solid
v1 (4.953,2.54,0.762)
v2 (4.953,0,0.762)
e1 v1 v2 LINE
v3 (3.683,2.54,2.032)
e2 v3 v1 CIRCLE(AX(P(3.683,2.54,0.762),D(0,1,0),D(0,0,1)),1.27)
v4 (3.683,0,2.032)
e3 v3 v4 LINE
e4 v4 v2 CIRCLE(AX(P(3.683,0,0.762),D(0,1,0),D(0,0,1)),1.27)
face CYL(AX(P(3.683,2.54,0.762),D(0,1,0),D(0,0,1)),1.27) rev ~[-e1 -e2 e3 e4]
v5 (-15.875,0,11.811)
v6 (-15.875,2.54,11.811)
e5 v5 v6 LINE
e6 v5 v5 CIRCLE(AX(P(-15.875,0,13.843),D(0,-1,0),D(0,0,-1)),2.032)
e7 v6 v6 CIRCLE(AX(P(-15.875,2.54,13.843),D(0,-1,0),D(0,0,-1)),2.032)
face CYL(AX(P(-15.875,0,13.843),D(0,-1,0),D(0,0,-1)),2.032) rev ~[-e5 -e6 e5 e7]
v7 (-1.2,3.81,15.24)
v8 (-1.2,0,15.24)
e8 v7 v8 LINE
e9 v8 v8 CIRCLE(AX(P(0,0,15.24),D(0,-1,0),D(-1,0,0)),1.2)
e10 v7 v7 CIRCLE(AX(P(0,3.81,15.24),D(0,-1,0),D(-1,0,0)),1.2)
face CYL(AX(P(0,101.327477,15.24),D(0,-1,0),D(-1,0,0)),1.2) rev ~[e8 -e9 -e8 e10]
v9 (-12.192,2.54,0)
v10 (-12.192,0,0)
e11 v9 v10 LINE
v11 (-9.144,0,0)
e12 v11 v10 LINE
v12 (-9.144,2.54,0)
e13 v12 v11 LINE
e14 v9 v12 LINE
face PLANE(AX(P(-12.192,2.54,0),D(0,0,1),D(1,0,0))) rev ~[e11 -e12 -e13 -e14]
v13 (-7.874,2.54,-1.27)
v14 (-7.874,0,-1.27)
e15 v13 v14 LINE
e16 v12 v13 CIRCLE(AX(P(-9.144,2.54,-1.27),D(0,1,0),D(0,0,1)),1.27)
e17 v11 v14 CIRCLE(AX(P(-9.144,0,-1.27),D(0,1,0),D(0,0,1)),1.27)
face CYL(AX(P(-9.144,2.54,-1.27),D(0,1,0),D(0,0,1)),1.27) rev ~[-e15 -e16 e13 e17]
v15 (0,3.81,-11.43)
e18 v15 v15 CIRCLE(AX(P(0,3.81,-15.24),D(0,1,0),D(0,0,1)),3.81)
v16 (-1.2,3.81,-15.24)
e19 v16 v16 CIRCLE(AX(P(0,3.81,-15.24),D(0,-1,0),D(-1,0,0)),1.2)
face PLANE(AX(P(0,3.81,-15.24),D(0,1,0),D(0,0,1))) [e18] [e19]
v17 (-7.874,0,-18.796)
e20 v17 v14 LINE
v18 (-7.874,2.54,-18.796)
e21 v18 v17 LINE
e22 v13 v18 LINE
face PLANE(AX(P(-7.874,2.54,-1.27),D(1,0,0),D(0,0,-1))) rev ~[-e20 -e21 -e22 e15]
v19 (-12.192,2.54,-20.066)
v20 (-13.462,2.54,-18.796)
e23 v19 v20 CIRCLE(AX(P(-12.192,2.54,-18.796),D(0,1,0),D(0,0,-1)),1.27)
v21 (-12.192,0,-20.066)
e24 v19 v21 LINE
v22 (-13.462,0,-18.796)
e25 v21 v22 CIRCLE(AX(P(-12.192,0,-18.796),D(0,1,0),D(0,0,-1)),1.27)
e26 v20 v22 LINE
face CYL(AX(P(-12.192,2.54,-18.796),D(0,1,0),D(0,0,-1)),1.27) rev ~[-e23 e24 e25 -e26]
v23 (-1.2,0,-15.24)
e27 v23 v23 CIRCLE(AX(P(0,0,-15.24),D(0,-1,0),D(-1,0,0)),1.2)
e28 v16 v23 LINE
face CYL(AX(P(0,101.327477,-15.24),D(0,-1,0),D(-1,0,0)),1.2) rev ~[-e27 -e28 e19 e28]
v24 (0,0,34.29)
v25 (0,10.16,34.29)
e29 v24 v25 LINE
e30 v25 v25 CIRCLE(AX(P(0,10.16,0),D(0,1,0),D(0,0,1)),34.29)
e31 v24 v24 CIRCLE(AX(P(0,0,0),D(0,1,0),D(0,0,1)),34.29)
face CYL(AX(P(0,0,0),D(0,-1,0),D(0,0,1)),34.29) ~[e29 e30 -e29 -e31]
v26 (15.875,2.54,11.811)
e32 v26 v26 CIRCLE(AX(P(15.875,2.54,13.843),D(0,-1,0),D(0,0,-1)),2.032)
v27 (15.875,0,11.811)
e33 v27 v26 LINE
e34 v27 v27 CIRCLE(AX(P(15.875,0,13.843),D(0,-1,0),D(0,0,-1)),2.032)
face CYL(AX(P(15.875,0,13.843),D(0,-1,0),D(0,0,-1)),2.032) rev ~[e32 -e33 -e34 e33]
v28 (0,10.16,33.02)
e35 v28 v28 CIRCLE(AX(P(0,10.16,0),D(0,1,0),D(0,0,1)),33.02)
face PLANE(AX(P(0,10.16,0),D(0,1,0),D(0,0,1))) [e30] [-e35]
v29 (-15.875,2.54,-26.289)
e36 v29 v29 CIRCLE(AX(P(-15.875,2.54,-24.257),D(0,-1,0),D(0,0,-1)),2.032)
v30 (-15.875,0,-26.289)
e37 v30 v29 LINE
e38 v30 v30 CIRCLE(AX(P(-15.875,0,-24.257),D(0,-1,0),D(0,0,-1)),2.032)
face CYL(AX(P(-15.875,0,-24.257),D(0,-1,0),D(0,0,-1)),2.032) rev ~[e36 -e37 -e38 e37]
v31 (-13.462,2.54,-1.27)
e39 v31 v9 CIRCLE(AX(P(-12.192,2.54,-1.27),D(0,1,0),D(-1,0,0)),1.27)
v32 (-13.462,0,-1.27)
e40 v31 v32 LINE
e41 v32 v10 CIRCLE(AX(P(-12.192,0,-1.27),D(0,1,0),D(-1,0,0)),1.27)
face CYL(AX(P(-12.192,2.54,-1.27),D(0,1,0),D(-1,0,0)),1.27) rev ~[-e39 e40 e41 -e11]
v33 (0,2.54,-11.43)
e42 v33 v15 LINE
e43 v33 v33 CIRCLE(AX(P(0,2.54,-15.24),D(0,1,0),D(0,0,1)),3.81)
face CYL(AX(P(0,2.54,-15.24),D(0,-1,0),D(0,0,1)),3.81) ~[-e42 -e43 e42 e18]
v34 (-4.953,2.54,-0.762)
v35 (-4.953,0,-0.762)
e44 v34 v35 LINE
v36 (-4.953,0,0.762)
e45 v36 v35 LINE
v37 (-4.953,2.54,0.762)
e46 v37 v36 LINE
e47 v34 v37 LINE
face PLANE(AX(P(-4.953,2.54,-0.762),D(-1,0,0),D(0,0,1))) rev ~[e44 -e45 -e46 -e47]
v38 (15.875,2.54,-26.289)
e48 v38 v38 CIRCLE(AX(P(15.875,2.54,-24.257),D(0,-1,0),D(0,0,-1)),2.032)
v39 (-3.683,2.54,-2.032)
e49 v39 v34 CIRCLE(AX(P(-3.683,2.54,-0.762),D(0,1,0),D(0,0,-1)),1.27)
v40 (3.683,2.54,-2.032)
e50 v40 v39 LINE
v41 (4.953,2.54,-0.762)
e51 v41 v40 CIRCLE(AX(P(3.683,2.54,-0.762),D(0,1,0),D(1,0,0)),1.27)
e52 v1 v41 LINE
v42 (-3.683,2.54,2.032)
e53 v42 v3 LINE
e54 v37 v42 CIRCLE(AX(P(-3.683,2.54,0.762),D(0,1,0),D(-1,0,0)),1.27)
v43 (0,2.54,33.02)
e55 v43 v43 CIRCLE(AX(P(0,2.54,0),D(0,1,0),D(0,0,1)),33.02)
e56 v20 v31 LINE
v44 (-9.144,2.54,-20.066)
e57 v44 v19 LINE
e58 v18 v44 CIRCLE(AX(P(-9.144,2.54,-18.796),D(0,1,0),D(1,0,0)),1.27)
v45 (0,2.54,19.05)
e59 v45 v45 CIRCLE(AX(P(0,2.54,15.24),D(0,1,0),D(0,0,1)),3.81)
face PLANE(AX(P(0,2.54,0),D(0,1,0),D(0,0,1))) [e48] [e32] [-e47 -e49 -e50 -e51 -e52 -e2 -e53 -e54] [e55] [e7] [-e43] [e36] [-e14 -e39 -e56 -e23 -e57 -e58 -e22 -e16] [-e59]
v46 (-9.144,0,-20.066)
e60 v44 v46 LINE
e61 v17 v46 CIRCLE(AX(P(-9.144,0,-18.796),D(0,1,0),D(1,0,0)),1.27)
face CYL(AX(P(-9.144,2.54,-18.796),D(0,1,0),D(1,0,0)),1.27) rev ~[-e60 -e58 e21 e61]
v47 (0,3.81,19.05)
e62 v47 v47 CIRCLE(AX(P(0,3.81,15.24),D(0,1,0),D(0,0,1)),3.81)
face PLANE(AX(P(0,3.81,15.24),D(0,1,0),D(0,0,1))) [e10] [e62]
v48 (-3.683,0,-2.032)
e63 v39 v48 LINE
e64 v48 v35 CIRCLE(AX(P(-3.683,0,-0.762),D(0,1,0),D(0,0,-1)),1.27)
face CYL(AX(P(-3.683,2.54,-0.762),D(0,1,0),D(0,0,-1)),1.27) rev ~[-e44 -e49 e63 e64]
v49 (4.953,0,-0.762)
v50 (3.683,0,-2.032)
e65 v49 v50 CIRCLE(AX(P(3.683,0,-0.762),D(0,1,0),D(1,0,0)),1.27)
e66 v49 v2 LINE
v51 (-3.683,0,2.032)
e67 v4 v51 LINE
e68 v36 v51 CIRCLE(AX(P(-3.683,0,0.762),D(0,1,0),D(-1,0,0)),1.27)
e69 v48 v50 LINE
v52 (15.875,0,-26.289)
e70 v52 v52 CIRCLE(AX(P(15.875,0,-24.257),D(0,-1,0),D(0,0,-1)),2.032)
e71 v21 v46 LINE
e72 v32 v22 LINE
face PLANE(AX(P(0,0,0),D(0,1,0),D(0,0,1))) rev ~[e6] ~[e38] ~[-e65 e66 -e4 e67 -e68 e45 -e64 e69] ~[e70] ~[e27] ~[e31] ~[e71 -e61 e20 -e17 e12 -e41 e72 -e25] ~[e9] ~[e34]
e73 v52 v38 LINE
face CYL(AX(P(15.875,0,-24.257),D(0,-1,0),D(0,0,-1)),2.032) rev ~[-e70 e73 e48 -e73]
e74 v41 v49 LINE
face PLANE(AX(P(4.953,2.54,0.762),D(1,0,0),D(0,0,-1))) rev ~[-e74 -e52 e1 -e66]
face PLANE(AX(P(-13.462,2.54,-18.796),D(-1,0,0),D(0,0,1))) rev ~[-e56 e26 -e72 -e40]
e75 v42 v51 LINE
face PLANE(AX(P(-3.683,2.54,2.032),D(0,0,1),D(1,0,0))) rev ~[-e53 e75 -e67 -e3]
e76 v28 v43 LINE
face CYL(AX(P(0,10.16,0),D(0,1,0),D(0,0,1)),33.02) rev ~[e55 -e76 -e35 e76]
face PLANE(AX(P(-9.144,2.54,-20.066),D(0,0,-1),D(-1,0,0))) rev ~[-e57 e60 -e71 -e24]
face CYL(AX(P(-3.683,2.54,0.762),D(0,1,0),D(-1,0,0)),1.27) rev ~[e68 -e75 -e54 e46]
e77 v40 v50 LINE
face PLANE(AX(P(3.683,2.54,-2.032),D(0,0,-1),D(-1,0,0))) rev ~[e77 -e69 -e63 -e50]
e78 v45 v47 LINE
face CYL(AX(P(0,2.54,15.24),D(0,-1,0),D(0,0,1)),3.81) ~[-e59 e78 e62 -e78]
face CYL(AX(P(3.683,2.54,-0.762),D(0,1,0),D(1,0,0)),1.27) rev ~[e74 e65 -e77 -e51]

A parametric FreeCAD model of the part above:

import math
import FreeCAD as App
import Part
import Sketcher
from FreeCAD import Vector
Q = App.Units.Quantity

doc = App.newDocument("Part")
params = doc.addObject("Spreadsheet::Sheet", "Params")
for row, (alias, value) in enumerate([
    ("sketch1_diameter", "2.7 in"),
    ("pad1_length", "0.4 in"),
    ("sketch2_diameter", "2.6 in"),
    ("pocket1_length", "0.3 in"),
    ("sketch3_diameter", "0.3 in"),
    ("pad2_length", "0.05 in"),
    ("sketch4_radius", "0.05 in"),
    ("sketch4_width", "0.29 in"),
    ("sketch4_height", "0.06 in"),
    ("sketch5_radius", "0.05 in"),
    ("sketch5_width", "0.12 in"),
    ("sketch5_height", "0.69 in"),
    ("sketch6_diameter", "0.16 in"),
    ("sketch7_diameter", "0.16 in"),
    ("sketch8_diameter", "0.16 in"),
    ("sketch9_diameter", "0.16 in"),
    ("hole_diameter", "2.4 mm"),
], start=1):
    params.set(f"A{row}", alias)
    params.set(f"B{row}", "=" + value)
    params.setAlias(f"B{row}", alias)

body = doc.addObject("PartDesign::Body", "Body")

# Sketch on XZ plane
sketch1 = body.newObject("Sketcher::SketchObject", "Sketch")
sketch1.AttachmentSupport = (doc.getObject("XZ_Plane"), [""])
sketch1.MapMode = "FlatFace"
sketch1.addGeometry(Part.Circle(Vector(0, 0, 0), Vector(0, 0, 1), 34.29), False)
sketch1.addConstraint(Sketcher.Constraint("Coincident", 0, 3, -1, 1))
sketch1.addConstraint(Sketcher.Constraint("Diameter", 0, Q("2.7 in")))
sketch1.setExpression("Constraints[1]", "Params.sketch1_diameter")
pad1 = body.newObject("PartDesign::Pad", "Pad")
pad1.Profile = sketch1
pad1.setExpression("Length", "Params.pad1_length")
pad1.Reversed = True

# Sketch on XZ plane
sketch2 = body.newObject("Sketcher::SketchObject", "Sketch001")
sketch2.AttachmentSupport = (doc.getObject("XZ_Plane"), [""])
sketch2.MapMode = "FlatFace"
sketch2.AttachmentOffset = App.Placement(Vector(0, 0, -0.4 * 25.4), App.Rotation())
sketch2.addGeometry(Part.Circle(Vector(0, 0, 0), Vector(0, 0, 1), 33.02), False)
sketch2.addConstraint(Sketcher.Constraint("Coincident", 0, 3, -1, 1))
sketch2.addConstraint(Sketcher.Constraint("Diameter", 0, Q("2.6 in")))
sketch2.setExpression("Constraints[1]", "Params.sketch2_diameter")
pocket1 = body.newObject("PartDesign::Pocket", "Pocket")
pocket1.Profile = sketch2
pocket1.setExpression("Length", "Params.pocket1_length")
pocket1.Reversed = True

# Sketch on XZ plane
sketch3 = body.newObject("Sketcher::SketchObject", "Sketch002")
sketch3.AttachmentSupport = (doc.getObject("XZ_Plane"), [""])
sketch3.MapMode = "FlatFace"
sketch3.AttachmentOffset = App.Placement(Vector(0, 0, -0.1 * 25.4), App.Rotation())
sketch3.addGeometry(Part.Circle(Vector(0, 15.24, 0), Vector(0, 0, 1), 3.81), False)
sketch3.addGeometry(Part.Circle(Vector(0, -15.24, 0), Vector(0, 0, 1), 3.81), False)
sketch3.addConstraint(Sketcher.Constraint("Equal", 0, 1))
sketch3.addConstraint(Sketcher.Constraint("Symmetric", 0, 3, 1, 3, -1, 1))
sketch3.addConstraint(Sketcher.Constraint("PointOnObject", 0, 3, -2))
sketch3.addConstraint(Sketcher.Constraint("Diameter", 0, Q("0.3 in")))
sketch3.addConstraint(Sketcher.Constraint("DistanceY", -1, 1, 0, 3, Q("0.6 in")))
sketch3.setExpression("Constraints[3]", "Params.sketch3_diameter")
pad2 = body.newObject("PartDesign::Pad", "Pad001")
pad2.Profile = sketch3
pad2.setExpression("Length", "Params.pad2_length")
pad2.Reversed = True

# Sketch on XZ plane
sketch4 = body.newObject("Sketcher::SketchObject", "Sketch003")
sketch4.AttachmentSupport = (doc.getObject("XZ_Plane"), [""])
sketch4.MapMode = "FlatFace"
sketch4.AttachmentOffset = App.Placement(Vector(0, 0, -0.1 * 25.4), App.Rotation())
sketch4.addGeometry(Part.LineSegment(Vector(3.683, -2.032, 0), Vector(-3.683, -2.032, 0)), False)
sketch4.addGeometry(Part.ArcOfCircle(Part.Circle(Vector(-3.683, -0.762, 0), Vector(0, 0, 1), 1.27), math.radians(180), math.radians(270)), False)
sketch4.addGeometry(Part.LineSegment(Vector(-4.953, -0.762, 0), Vector(-4.953, 0.762, 0)), False)
sketch4.addGeometry(Part.ArcOfCircle(Part.Circle(Vector(-3.683, 0.762, 0), Vector(0, 0, 1), 1.27), math.radians(90), math.radians(180)), False)
sketch4.addGeometry(Part.LineSegment(Vector(-3.683, 2.032, 0), Vector(3.683, 2.032, 0)), False)
sketch4.addGeometry(Part.ArcOfCircle(Part.Circle(Vector(3.683, 0.762, 0), Vector(0, 0, 1), 1.27), math.radians(0), math.radians(90)), False)
sketch4.addGeometry(Part.LineSegment(Vector(4.953, 0.762, 0), Vector(4.953, -0.762, 0)), False)
sketch4.addGeometry(Part.ArcOfCircle(Part.Circle(Vector(3.683, -0.762, 0), Vector(0, 0, 1), 1.27), math.radians(-90), math.radians(0)), False)
sketch4.addConstraint(Sketcher.Constraint("Tangent", 0, 2, 1, 2))
sketch4.addConstraint(Sketcher.Constraint("Tangent", 1, 1, 2, 1))
sketch4.addConstraint(Sketcher.Constraint("Tangent", 2, 2, 3, 2))
sketch4.addConstraint(Sketcher.Constraint("Tangent", 3, 1, 4, 1))
sketch4.addConstraint(Sketcher.Constraint("Tangent", 4, 2, 5, 2))
sketch4.addConstraint(Sketcher.Constraint("Tangent", 5, 1, 6, 1))
sketch4.addConstraint(Sketcher.Constraint("Tangent", 6, 2, 7, 2))
sketch4.addConstraint(Sketcher.Constraint("Tangent", 7, 1, 0, 1))
sketch4.addConstraint(Sketcher.Constraint("Horizontal", 0))
sketch4.addConstraint(Sketcher.Constraint("Vertical", 2))
sketch4.addConstraint(Sketcher.Constraint("Horizontal", 4))
sketch4.addConstraint(Sketcher.Constraint("Vertical", 6))
sketch4.addConstraint(Sketcher.Constraint("Equal", 1, 3))
sketch4.addConstraint(Sketcher.Constraint("Equal", 3, 5))
sketch4.addConstraint(Sketcher.Constraint("Equal", 5, 7))
sketch4.addConstraint(Sketcher.Constraint("Symmetric", 1, 3, 5, 3, -1, 1))
sketch4.addConstraint(Sketcher.Constraint("Radius", 1, Q("0.05 in")))
sketch4.addConstraint(Sketcher.Constraint("DistanceX", 0, 2, 0, 1, Q("0.29 in")))
sketch4.addConstraint(Sketcher.Constraint("DistanceY", 2, 1, 2, 2, Q("0.06 in")))
sketch4.setExpression("Constraints[16]", "Params.sketch4_radius")
sketch4.setExpression("Constraints[17]", "Params.sketch4_width")
sketch4.setExpression("Constraints[18]", "Params.sketch4_height")
pocket2 = body.newObject("PartDesign::Pocket", "Pocket001")
pocket2.Profile = sketch4
pocket2.Type = "UpToFirst"
pocket2.Reversed = True

# Sketch on XZ plane
sketch5 = body.newObject("Sketcher::SketchObject", "Sketch004")
sketch5.AttachmentSupport = (doc.getObject("XZ_Plane"), [""])
sketch5.MapMode = "FlatFace"
sketch5.AttachmentOffset = App.Placement(Vector(0, 0, -0.1 * 25.4), App.Rotation())
sketch5.addGeometry(Part.LineSegment(Vector(-12.192, 0, 0), Vector(-9.144, 0, 0)), False)
sketch5.addGeometry(Part.ArcOfCircle(Part.Circle(Vector(-9.144, -1.27, 0), Vector(0, 0, 1), 1.27), math.radians(0), math.radians(90)), False)
sketch5.addGeometry(Part.LineSegment(Vector(-7.874, -1.27, 0), Vector(-7.874, -18.796, 0)), False)
sketch5.addGeometry(Part.ArcOfCircle(Part.Circle(Vector(-9.144, -18.796, 0), Vector(0, 0, 1), 1.27), math.radians(-90), math.radians(0)), False)
sketch5.addGeometry(Part.LineSegment(Vector(-9.144, -20.066, 0), Vector(-12.192, -20.066, 0)), False)
sketch5.addGeometry(Part.ArcOfCircle(Part.Circle(Vector(-12.192, -18.796, 0), Vector(0, 0, 1), 1.27), math.radians(180), math.radians(270)), False)
sketch5.addGeometry(Part.LineSegment(Vector(-13.462, -18.796, 0), Vector(-13.462, -1.27, 0)), False)
sketch5.addGeometry(Part.ArcOfCircle(Part.Circle(Vector(-12.192, -1.27, 0), Vector(0, 0, 1), 1.27), math.radians(90), math.radians(180)), False)
sketch5.addConstraint(Sketcher.Constraint("Tangent", 0, 2, 1, 2))
sketch5.addConstraint(Sketcher.Constraint("Tangent", 1, 1, 2, 1))
sketch5.addConstraint(Sketcher.Constraint("Tangent", 2, 2, 3, 2))
sketch5.addConstraint(Sketcher.Constraint("Tangent", 3, 1, 4, 1))
sketch5.addConstraint(Sketcher.Constraint("Tangent", 4, 2, 5, 2))
sketch5.addConstraint(Sketcher.Constraint("Tangent", 5, 1, 6, 1))
sketch5.addConstraint(Sketcher.Constraint("Tangent", 6, 2, 7, 2))
sketch5.addConstraint(Sketcher.Constraint("Tangent", 7, 1, 0, 1))
sketch5.addConstraint(Sketcher.Constraint("Horizontal", 0))
sketch5.addConstraint(Sketcher.Constraint("Vertical", 2))
sketch5.addConstraint(Sketcher.Constraint("Horizontal", 4))
sketch5.addConstraint(Sketcher.Constraint("Vertical", 6))
sketch5.addConstraint(Sketcher.Constraint("Equal", 1, 3))
sketch5.addConstraint(Sketcher.Constraint("Equal", 3, 5))
sketch5.addConstraint(Sketcher.Constraint("Equal", 5, 7))
sketch5.addConstraint(Sketcher.Constraint("PointOnObject", 0, 2, -1))
sketch5.addConstraint(Sketcher.Constraint("Radius", 1, Q("0.05 in")))
sketch5.addConstraint(Sketcher.Constraint("DistanceX", 0, 1, 0, 2, Q("0.12 in")))
sketch5.addConstraint(Sketcher.Constraint("DistanceY", 2, 2, 2, 1, Q("0.69 in")))
sketch5.addConstraint(Sketcher.Constraint("DistanceX", 1, 3, -1, 1, Q("0.36 in")))
sketch5.setExpression("Constraints[16]", "Params.sketch5_radius")
sketch5.setExpression("Constraints[17]", "Params.sketch5_width")
sketch5.setExpression("Constraints[18]", "Params.sketch5_height")
pocket3 = body.newObject("PartDesign::Pocket", "Pocket002")
pocket3.Profile = sketch5
pocket3.Type = "UpToFirst"
pocket3.Reversed = True

# Sketch on XZ plane
sketch6 = body.newObject("Sketcher::SketchObject", "Sketch005")
sketch6.AttachmentSupport = (doc.getObject("XZ_Plane"), [""])
sketch6.MapMode = "FlatFace"
sketch6.addGeometry(Part.Circle(Vector(15.875, 13.843, 0), Vector(0, 0, 1), 2.032), False)
sketch6.addConstraint(Sketcher.Constraint("Diameter", 0, Q("0.16 in")))
sketch6.addConstraint(Sketcher.Constraint("DistanceX", -1, 1, 0, 3, Q("0.625 in")))
sketch6.addConstraint(Sketcher.Constraint("DistanceY", -1, 1, 0, 3, Q("0.545 in")))
sketch6.setExpression("Constraints[0]", "Params.sketch6_diameter")
pocket4 = body.newObject("PartDesign::Pocket", "Pocket003")
pocket4.Profile = sketch6
pocket4.Type = "UpToFirst"

# Sketch on XZ plane
sketch7 = body.newObject("Sketcher::SketchObject", "Sketch006")
sketch7.AttachmentSupport = (doc.getObject("XZ_Plane"), [""])
sketch7.MapMode = "FlatFace"
sketch7.addGeometry(Part.Circle(Vector(-15.875, 13.843, 0), Vector(0, 0, 1), 2.032), False)
sketch7.addConstraint(Sketcher.Constraint("Diameter", 0, Q("0.16 in")))
sketch7.addConstraint(Sketcher.Constraint("DistanceX", 0, 3, -1, 1, Q("0.625 in")))
sketch7.addConstraint(Sketcher.Constraint("DistanceY", -1, 1, 0, 3, Q("0.545 in")))
sketch7.setExpression("Constraints[0]", "Params.sketch7_diameter")
pocket5 = body.newObject("PartDesign::Pocket", "Pocket004")
pocket5.Profile = sketch7
pocket5.Type = "UpToFirst"

# Sketch on XZ plane
sketch8 = body.newObject("Sketcher::SketchObject", "Sketch007")
sketch8.AttachmentSupport = (doc.getObject("XZ_Plane"), [""])
sketch8.MapMode = "FlatFace"
sketch8.addGeometry(Part.Circle(Vector(-15.875, -24.257, 0), Vector(0, 0, 1), 2.032), False)
sketch8.addConstraint(Sketcher.Constraint("Diameter", 0, Q("0.16 in")))
sketch8.addConstraint(Sketcher.Constraint("DistanceX", 0, 3, -1, 1, Q("0.625 in")))
sketch8.addConstraint(Sketcher.Constraint("DistanceY", 0, 3, -1, 1, Q("0.955 in")))
sketch8.setExpression("Constraints[0]", "Params.sketch8_diameter")
pocket6 = body.newObject("PartDesign::Pocket", "Pocket005")
pocket6.Profile = sketch8
pocket6.Type = "UpToFirst"

# Sketch on XZ plane
sketch9 = body.newObject("Sketcher::SketchObject", "Sketch008")
sketch9.AttachmentSupport = (doc.getObject("XZ_Plane"), [""])
sketch9.MapMode = "FlatFace"
sketch9.addGeometry(Part.Circle(Vector(15.875, -24.257, 0), Vector(0, 0, 1), 2.032), False)
sketch9.addConstraint(Sketcher.Constraint("Diameter", 0, Q("0.16 in")))
sketch9.addConstraint(Sketcher.Constraint("DistanceX", -1, 1, 0, 3, Q("0.625 in")))
sketch9.addConstraint(Sketcher.Constraint("DistanceY", 0, 3, -1, 1, Q("0.955 in")))
sketch9.setExpression("Constraints[0]", "Params.sketch9_diameter")
pocket7 = body.newObject("PartDesign::Pocket", "Pocket006")
pocket7.Profile = sketch9
pocket7.Type = "UpToFirst"

# Sketch on XZ plane
sketch10 = body.newObject("Sketcher::SketchObject", "Sketch009")
sketch10.AttachmentSupport = (doc.getObject("XZ_Plane"), [""])
sketch10.MapMode = "FlatFace"
sketch10.AttachmentOffset = App.Placement(Vector(0, 0, -0.15 * 25.4), App.Rotation())
sketch10.addGeometry(Part.Circle(Vector(0, -15.24, 0), Vector(0, 0, 1), 1.2), False)
sketch10.addGeometry(Part.Circle(Vector(0, 15.24, 0), Vector(0, 0, 1), 1.2), False)
sketch10.addConstraint(Sketcher.Constraint("Equal", 0, 1))
sketch10.addConstraint(Sketcher.Constraint("Symmetric", 0, 3, 1, 3, -1, 1))
sketch10.addConstraint(Sketcher.Constraint("PointOnObject", 0, 3, -2))
sketch10.addConstraint(Sketcher.Constraint("DistanceY", 0, 3, -1, 1, Q("0.6 in")))
sketch10.addConstraint(Sketcher.Constraint("Diameter", 0, Q("2.4 mm")))
doc.recompute()
hole = body.newObject("PartDesign::Hole", "Hole")
hole.Profile = sketch10
hole.ThreadType = "None"
hole.setExpression("Diameter", "Params.hole_diameter")
hole.DepthType = "ThroughAll"
hole.Reversed = True

doc.recompute()
